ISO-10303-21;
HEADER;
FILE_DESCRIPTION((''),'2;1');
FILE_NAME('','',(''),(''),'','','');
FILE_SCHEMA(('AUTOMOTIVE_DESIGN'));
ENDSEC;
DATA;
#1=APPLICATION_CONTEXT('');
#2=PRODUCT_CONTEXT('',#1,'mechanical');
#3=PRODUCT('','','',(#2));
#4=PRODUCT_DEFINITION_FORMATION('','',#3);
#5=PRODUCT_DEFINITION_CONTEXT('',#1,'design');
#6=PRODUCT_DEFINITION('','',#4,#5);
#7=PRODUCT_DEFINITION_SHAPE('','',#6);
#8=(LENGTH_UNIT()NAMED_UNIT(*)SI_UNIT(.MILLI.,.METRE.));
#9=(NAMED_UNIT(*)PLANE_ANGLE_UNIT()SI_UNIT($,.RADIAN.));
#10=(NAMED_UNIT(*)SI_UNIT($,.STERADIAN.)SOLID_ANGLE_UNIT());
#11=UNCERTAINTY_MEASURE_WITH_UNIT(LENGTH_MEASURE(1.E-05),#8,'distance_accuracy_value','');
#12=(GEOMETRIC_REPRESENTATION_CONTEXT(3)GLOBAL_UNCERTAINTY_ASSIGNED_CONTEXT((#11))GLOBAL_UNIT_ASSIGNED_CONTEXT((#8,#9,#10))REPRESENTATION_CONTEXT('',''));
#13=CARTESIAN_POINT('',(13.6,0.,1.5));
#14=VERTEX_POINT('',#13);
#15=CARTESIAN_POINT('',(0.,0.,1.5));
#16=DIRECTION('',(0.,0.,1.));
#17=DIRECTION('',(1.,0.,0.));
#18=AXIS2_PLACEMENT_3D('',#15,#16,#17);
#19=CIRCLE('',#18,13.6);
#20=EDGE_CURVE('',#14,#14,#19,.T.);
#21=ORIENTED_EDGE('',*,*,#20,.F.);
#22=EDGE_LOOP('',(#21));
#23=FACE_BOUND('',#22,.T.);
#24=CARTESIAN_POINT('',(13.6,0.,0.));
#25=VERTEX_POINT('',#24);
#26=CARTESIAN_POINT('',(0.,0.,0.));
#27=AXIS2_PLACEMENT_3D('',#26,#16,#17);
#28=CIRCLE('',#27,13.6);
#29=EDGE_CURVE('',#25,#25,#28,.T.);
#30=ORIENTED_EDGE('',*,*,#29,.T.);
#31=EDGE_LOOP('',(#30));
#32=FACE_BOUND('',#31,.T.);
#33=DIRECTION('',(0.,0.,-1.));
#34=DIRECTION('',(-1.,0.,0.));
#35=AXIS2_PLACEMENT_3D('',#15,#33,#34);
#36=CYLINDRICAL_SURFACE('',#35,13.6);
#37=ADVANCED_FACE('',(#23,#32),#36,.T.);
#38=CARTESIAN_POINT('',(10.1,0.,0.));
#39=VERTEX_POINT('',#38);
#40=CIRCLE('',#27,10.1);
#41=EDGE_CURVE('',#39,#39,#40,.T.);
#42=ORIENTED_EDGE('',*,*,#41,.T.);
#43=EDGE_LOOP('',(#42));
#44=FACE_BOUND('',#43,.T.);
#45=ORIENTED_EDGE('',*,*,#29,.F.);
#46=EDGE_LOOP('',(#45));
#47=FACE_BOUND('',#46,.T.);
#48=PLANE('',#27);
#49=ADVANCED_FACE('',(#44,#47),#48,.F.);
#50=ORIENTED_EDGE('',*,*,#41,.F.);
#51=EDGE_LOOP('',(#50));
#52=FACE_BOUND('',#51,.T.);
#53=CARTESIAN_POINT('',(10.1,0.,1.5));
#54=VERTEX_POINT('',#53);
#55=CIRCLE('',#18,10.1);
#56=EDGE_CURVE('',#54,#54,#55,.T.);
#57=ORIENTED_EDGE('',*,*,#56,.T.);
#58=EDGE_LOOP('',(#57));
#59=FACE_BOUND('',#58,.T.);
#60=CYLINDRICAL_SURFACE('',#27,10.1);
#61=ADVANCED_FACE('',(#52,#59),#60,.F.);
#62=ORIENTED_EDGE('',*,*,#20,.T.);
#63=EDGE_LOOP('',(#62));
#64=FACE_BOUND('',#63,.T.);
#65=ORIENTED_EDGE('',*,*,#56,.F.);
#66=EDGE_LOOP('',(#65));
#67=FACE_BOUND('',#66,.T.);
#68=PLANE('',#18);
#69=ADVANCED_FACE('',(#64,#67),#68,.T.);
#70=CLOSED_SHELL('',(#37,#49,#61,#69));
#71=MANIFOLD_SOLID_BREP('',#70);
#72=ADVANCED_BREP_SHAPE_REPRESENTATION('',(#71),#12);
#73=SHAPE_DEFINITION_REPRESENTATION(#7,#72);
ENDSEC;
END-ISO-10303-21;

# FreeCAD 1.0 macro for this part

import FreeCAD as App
import Part
import Sketcher
from FreeCAD import Vector
Q = App.Units.Quantity

doc = App.newDocument("Part")
body = doc.addObject("PartDesign::Body", "Body")

# Sketch on XY plane
sketch1 = doc.addObject("Sketcher::SketchObject", "Sketch")
body.addObject(sketch1)
sketch1.AttachmentSupport = (doc.XY_Plane, [""])
sketch1.MapMode = "FlatFace"
sketch1.addGeometry(Part.Circle(Vector(0, 0, 0), Vector(0, 0, 1), 14), False)
sketch1.addConstraint([
    Sketcher.Constraint("Coincident", 0, 3, -1, 1),
    Sketcher.Constraint("Diameter", 0, Q("27.2 mm")),
])
pad1 = doc.addObject("PartDesign::Pad", "Pad")
body.addObject(pad1)
pad1.Profile = sketch1
pad1.Length = 1.5

# Sketch on XY plane
sketch2 = doc.addObject("Sketcher::SketchObject", "Sketch001")
body.addObject(sketch2)
sketch2.AttachmentSupport = (doc.XY_Plane, [""])
sketch2.MapMode = "FlatFace"
sketch2.AttachmentOffset = App.Placement(Vector(0, 0, 1.5), App.Rotation())
sketch2.addGeometry(Part.Circle(Vector(0, 0, 0), Vector(0, 0, 1), 10), False)
sketch2.addConstraint([
    Sketcher.Constraint("Coincident", 0, 3, -1, 1),
    Sketcher.Constraint("Diameter", 0, Q("20.2 mm")),
])
pocket1 = doc.addObject("PartDesign::Pocket", "Pocket")
body.addObject(pocket1)
pocket1.Profile = sketch2
pocket1.Length = 1.5

doc.recompute()
